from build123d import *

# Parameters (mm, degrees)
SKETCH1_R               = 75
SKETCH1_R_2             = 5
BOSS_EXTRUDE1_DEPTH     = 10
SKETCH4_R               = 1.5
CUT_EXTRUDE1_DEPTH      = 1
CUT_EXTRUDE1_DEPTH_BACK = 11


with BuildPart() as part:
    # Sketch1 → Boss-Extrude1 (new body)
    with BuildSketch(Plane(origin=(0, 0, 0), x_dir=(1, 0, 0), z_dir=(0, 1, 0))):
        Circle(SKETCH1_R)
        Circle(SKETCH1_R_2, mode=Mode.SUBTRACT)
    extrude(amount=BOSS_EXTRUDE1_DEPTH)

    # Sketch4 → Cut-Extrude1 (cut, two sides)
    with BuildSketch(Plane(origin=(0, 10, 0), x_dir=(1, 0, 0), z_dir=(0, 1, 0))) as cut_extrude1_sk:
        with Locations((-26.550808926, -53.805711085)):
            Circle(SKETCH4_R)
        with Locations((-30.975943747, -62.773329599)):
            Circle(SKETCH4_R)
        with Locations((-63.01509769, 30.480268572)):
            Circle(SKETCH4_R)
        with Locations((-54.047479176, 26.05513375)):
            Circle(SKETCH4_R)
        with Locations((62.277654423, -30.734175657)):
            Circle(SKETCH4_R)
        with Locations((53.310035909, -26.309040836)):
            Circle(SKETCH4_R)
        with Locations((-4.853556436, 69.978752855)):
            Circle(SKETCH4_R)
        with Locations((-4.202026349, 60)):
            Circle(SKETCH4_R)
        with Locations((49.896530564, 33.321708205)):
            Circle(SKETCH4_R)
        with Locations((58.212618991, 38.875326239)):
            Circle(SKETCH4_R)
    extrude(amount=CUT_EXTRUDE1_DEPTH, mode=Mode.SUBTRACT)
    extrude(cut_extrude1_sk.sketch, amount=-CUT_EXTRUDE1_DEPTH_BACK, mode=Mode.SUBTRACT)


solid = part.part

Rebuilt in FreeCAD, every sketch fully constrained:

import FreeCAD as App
import Part
import Sketcher
Q = App.Units.Quantity

doc = App.newDocument("Part")
body = doc.addObject("PartDesign::Body", "Body")

sketch1 = body.newObject("Sketcher::SketchObject", "Sketch")
sketch1.AttachmentSupport = (doc.getObject("XZ_Plane"), [""])
sketch1.MapMode = "FlatFace"
sketch1.addGeometry(Part.Circle(App.Vector(0, 0, 0), App.Vector(0, 0, 1), 75), False)
sketch1.addGeometry(Part.Circle(App.Vector(0, 0, 0), App.Vector(0, 0, 1), 5), False)
sketch1.addConstraint(Sketcher.Constraint("Coincident", 0, 3, -1, 1))
sketch1.addConstraint(Sketcher.Constraint("Coincident", 1, 3, -1, 1))
sketch1.addConstraint(Sketcher.Constraint("Diameter", 0, Q("150 mm")))
sketch1.addConstraint(Sketcher.Constraint("Diameter", 1, Q("10 mm")))
pad1 = body.newObject("PartDesign::Pad", "Pad")
pad1.Profile = sketch1
pad1.Length = 10
pad1.Reversed = True

sketch2 = body.newObject("Sketcher::SketchObject", "Sketch001")
sketch2.AttachmentSupport = (doc.getObject("XZ_Plane"), [""])
sketch2.MapMode = "FlatFace"
sketch2.AttachmentOffset = App.Placement(App.Vector(0, 0, -10), App.Rotation())
sketch2.addGeometry(Part.Circle(App.Vector(-26.550809, 53.805711, 0), App.Vector(0, 0, 1), 1.5), False)
sketch2.addGeometry(Part.Circle(App.Vector(-30.975944, 62.77333, 0), App.Vector(0, 0, 1), 1.5), False)
sketch2.addGeometry(Part.Circle(App.Vector(-63.015098, -30.480269, 0), App.Vector(0, 0, 1), 1.5), False)
sketch2.addGeometry(Part.Circle(App.Vector(-54.047479, -26.055134, 0), App.Vector(0, 0, 1), 1.5), False)
sketch2.addGeometry(Part.Circle(App.Vector(62.277654, 30.734176, 0), App.Vector(0, 0, 1), 1.5), False)
sketch2.addGeometry(Part.Circle(App.Vector(53.310036, 26.309041, 0), App.Vector(0, 0, 1), 1.5), False)
sketch2.addGeometry(Part.Circle(App.Vector(-4.853556, -69.978753, 0), App.Vector(0, 0, 1), 1.5), False)
sketch2.addGeometry(Part.Circle(App.Vector(-4.202026, -60, 0), App.Vector(0, 0, 1), 1.5), False)
sketch2.addGeometry(Part.Circle(App.Vector(49.896531, -33.321708, 0), App.Vector(0, 0, 1), 1.5), False)
sketch2.addGeometry(Part.Circle(App.Vector(58.212619, -38.875326, 0), App.Vector(0, 0, 1), 1.5), False)
sketch2.addConstraint(Sketcher.Constraint("Equal", 0, 1))
sketch2.addConstraint(Sketcher.Constraint("Equal", 1, 2))
sketch2.addConstraint(Sketcher.Constraint("Equal", 2, 3))
sketch2.addConstraint(Sketcher.Constraint("Equal", 3, 4))
sketch2.addConstraint(Sketcher.Constraint("Equal", 4, 5))
sketch2.addConstraint(Sketcher.Constraint("Equal", 5, 6))
sketch2.addConstraint(Sketcher.Constraint("Equal", 6, 7))
sketch2.addConstraint(Sketcher.Constraint("Equal", 7, 8))
sketch2.addConstraint(Sketcher.Constraint("Equal", 8, 9))
sketch2.addConstraint(Sketcher.Constraint("Diameter", 0, Q("3 mm")))
sketch2.addConstraint(Sketcher.Constraint("DistanceY", 7, 3, -1, 1, Q("60 mm")))
sketch2.addConstraint(Sketcher.Constraint("DistanceY", 2, 3, 1, 3, Q("93.253598 mm")))
sketch2.addConstraint(Sketcher.Constraint("DistanceX", 1, 3, 4, 3, Q("93.253598 mm")))
sketch2.addConstraint(Sketcher.Constraint("DistanceY", 9, 3, 4, 3, Q("69.609502 mm")))
sketch2.addConstraint(Sketcher.Constraint("DistanceX", 0, 3, -1, 1, Q("26.550809 mm")))
sketch2.addConstraint(Sketcher.Constraint("DistanceY", -1, 1, 0, 3, Q("53.805711 mm")))
sketch2.addConstraint(Sketcher.Constraint("DistanceY", -1, 1, 1, 3, Q("62.77333 mm")))
sketch2.addConstraint(Sketcher.Constraint("DistanceX", 3, 3, -1, 1, Q("54.047479 mm")))
sketch2.addConstraint(Sketcher.Constraint("DistanceY", -1, 1, 5, 3, Q("26.309041 mm")))
sketch2.addConstraint(Sketcher.Constraint("DistanceX", -1, 1, 8, 3, Q("49.896531 mm")))
sketch2.addConstraint(Sketcher.Constraint("DistanceY", 8, 3, -1, 1, Q("33.321708 mm")))
sketch2.addConstraint(Sketcher.Constraint("DistanceX", -1, 1, 9, 3, Q("58.212619 mm")))
sketch2.addConstraint(Sketcher.Constraint("DistanceX", 2, 3, 0, 3, Q("36.464289 mm")))
sketch2.addConstraint(Sketcher.Constraint("DistanceY", 3, 3, 4, 3, Q("56.789309 mm")))
sketch2.addConstraint(Sketcher.Constraint("DistanceX", 5, 3, 4, 3, Q("8.967619 mm")))
sketch2.addConstraint(Sketcher.Constraint("DistanceY", 6, 3, 3, 3, Q("43.923619 mm")))
sketch2.addConstraint(Sketcher.Constraint("DistanceX", 2, 3, 6, 3, Q("58.161541 mm")))
sketch2.addConstraint(Sketcher.Constraint("DistanceX", 6, 3, 4, 3, Q("67.131211 mm")))
sketch2.addConstraint(Sketcher.Constraint("DistanceX", 6, 3, 7, 3, Q("0.65153 mm")))
sketch2.addConstraint(Sketcher.Constraint("DistanceY", 9, 3, 8, 3, Q("5.553618 mm")))
pocket1 = body.newObject("PartDesign::Pocket", "Pocket")
pocket1.Profile = sketch2
pocket1.Type = "ThroughAll"
pocket1.Midplane = True

doc.recompute()
